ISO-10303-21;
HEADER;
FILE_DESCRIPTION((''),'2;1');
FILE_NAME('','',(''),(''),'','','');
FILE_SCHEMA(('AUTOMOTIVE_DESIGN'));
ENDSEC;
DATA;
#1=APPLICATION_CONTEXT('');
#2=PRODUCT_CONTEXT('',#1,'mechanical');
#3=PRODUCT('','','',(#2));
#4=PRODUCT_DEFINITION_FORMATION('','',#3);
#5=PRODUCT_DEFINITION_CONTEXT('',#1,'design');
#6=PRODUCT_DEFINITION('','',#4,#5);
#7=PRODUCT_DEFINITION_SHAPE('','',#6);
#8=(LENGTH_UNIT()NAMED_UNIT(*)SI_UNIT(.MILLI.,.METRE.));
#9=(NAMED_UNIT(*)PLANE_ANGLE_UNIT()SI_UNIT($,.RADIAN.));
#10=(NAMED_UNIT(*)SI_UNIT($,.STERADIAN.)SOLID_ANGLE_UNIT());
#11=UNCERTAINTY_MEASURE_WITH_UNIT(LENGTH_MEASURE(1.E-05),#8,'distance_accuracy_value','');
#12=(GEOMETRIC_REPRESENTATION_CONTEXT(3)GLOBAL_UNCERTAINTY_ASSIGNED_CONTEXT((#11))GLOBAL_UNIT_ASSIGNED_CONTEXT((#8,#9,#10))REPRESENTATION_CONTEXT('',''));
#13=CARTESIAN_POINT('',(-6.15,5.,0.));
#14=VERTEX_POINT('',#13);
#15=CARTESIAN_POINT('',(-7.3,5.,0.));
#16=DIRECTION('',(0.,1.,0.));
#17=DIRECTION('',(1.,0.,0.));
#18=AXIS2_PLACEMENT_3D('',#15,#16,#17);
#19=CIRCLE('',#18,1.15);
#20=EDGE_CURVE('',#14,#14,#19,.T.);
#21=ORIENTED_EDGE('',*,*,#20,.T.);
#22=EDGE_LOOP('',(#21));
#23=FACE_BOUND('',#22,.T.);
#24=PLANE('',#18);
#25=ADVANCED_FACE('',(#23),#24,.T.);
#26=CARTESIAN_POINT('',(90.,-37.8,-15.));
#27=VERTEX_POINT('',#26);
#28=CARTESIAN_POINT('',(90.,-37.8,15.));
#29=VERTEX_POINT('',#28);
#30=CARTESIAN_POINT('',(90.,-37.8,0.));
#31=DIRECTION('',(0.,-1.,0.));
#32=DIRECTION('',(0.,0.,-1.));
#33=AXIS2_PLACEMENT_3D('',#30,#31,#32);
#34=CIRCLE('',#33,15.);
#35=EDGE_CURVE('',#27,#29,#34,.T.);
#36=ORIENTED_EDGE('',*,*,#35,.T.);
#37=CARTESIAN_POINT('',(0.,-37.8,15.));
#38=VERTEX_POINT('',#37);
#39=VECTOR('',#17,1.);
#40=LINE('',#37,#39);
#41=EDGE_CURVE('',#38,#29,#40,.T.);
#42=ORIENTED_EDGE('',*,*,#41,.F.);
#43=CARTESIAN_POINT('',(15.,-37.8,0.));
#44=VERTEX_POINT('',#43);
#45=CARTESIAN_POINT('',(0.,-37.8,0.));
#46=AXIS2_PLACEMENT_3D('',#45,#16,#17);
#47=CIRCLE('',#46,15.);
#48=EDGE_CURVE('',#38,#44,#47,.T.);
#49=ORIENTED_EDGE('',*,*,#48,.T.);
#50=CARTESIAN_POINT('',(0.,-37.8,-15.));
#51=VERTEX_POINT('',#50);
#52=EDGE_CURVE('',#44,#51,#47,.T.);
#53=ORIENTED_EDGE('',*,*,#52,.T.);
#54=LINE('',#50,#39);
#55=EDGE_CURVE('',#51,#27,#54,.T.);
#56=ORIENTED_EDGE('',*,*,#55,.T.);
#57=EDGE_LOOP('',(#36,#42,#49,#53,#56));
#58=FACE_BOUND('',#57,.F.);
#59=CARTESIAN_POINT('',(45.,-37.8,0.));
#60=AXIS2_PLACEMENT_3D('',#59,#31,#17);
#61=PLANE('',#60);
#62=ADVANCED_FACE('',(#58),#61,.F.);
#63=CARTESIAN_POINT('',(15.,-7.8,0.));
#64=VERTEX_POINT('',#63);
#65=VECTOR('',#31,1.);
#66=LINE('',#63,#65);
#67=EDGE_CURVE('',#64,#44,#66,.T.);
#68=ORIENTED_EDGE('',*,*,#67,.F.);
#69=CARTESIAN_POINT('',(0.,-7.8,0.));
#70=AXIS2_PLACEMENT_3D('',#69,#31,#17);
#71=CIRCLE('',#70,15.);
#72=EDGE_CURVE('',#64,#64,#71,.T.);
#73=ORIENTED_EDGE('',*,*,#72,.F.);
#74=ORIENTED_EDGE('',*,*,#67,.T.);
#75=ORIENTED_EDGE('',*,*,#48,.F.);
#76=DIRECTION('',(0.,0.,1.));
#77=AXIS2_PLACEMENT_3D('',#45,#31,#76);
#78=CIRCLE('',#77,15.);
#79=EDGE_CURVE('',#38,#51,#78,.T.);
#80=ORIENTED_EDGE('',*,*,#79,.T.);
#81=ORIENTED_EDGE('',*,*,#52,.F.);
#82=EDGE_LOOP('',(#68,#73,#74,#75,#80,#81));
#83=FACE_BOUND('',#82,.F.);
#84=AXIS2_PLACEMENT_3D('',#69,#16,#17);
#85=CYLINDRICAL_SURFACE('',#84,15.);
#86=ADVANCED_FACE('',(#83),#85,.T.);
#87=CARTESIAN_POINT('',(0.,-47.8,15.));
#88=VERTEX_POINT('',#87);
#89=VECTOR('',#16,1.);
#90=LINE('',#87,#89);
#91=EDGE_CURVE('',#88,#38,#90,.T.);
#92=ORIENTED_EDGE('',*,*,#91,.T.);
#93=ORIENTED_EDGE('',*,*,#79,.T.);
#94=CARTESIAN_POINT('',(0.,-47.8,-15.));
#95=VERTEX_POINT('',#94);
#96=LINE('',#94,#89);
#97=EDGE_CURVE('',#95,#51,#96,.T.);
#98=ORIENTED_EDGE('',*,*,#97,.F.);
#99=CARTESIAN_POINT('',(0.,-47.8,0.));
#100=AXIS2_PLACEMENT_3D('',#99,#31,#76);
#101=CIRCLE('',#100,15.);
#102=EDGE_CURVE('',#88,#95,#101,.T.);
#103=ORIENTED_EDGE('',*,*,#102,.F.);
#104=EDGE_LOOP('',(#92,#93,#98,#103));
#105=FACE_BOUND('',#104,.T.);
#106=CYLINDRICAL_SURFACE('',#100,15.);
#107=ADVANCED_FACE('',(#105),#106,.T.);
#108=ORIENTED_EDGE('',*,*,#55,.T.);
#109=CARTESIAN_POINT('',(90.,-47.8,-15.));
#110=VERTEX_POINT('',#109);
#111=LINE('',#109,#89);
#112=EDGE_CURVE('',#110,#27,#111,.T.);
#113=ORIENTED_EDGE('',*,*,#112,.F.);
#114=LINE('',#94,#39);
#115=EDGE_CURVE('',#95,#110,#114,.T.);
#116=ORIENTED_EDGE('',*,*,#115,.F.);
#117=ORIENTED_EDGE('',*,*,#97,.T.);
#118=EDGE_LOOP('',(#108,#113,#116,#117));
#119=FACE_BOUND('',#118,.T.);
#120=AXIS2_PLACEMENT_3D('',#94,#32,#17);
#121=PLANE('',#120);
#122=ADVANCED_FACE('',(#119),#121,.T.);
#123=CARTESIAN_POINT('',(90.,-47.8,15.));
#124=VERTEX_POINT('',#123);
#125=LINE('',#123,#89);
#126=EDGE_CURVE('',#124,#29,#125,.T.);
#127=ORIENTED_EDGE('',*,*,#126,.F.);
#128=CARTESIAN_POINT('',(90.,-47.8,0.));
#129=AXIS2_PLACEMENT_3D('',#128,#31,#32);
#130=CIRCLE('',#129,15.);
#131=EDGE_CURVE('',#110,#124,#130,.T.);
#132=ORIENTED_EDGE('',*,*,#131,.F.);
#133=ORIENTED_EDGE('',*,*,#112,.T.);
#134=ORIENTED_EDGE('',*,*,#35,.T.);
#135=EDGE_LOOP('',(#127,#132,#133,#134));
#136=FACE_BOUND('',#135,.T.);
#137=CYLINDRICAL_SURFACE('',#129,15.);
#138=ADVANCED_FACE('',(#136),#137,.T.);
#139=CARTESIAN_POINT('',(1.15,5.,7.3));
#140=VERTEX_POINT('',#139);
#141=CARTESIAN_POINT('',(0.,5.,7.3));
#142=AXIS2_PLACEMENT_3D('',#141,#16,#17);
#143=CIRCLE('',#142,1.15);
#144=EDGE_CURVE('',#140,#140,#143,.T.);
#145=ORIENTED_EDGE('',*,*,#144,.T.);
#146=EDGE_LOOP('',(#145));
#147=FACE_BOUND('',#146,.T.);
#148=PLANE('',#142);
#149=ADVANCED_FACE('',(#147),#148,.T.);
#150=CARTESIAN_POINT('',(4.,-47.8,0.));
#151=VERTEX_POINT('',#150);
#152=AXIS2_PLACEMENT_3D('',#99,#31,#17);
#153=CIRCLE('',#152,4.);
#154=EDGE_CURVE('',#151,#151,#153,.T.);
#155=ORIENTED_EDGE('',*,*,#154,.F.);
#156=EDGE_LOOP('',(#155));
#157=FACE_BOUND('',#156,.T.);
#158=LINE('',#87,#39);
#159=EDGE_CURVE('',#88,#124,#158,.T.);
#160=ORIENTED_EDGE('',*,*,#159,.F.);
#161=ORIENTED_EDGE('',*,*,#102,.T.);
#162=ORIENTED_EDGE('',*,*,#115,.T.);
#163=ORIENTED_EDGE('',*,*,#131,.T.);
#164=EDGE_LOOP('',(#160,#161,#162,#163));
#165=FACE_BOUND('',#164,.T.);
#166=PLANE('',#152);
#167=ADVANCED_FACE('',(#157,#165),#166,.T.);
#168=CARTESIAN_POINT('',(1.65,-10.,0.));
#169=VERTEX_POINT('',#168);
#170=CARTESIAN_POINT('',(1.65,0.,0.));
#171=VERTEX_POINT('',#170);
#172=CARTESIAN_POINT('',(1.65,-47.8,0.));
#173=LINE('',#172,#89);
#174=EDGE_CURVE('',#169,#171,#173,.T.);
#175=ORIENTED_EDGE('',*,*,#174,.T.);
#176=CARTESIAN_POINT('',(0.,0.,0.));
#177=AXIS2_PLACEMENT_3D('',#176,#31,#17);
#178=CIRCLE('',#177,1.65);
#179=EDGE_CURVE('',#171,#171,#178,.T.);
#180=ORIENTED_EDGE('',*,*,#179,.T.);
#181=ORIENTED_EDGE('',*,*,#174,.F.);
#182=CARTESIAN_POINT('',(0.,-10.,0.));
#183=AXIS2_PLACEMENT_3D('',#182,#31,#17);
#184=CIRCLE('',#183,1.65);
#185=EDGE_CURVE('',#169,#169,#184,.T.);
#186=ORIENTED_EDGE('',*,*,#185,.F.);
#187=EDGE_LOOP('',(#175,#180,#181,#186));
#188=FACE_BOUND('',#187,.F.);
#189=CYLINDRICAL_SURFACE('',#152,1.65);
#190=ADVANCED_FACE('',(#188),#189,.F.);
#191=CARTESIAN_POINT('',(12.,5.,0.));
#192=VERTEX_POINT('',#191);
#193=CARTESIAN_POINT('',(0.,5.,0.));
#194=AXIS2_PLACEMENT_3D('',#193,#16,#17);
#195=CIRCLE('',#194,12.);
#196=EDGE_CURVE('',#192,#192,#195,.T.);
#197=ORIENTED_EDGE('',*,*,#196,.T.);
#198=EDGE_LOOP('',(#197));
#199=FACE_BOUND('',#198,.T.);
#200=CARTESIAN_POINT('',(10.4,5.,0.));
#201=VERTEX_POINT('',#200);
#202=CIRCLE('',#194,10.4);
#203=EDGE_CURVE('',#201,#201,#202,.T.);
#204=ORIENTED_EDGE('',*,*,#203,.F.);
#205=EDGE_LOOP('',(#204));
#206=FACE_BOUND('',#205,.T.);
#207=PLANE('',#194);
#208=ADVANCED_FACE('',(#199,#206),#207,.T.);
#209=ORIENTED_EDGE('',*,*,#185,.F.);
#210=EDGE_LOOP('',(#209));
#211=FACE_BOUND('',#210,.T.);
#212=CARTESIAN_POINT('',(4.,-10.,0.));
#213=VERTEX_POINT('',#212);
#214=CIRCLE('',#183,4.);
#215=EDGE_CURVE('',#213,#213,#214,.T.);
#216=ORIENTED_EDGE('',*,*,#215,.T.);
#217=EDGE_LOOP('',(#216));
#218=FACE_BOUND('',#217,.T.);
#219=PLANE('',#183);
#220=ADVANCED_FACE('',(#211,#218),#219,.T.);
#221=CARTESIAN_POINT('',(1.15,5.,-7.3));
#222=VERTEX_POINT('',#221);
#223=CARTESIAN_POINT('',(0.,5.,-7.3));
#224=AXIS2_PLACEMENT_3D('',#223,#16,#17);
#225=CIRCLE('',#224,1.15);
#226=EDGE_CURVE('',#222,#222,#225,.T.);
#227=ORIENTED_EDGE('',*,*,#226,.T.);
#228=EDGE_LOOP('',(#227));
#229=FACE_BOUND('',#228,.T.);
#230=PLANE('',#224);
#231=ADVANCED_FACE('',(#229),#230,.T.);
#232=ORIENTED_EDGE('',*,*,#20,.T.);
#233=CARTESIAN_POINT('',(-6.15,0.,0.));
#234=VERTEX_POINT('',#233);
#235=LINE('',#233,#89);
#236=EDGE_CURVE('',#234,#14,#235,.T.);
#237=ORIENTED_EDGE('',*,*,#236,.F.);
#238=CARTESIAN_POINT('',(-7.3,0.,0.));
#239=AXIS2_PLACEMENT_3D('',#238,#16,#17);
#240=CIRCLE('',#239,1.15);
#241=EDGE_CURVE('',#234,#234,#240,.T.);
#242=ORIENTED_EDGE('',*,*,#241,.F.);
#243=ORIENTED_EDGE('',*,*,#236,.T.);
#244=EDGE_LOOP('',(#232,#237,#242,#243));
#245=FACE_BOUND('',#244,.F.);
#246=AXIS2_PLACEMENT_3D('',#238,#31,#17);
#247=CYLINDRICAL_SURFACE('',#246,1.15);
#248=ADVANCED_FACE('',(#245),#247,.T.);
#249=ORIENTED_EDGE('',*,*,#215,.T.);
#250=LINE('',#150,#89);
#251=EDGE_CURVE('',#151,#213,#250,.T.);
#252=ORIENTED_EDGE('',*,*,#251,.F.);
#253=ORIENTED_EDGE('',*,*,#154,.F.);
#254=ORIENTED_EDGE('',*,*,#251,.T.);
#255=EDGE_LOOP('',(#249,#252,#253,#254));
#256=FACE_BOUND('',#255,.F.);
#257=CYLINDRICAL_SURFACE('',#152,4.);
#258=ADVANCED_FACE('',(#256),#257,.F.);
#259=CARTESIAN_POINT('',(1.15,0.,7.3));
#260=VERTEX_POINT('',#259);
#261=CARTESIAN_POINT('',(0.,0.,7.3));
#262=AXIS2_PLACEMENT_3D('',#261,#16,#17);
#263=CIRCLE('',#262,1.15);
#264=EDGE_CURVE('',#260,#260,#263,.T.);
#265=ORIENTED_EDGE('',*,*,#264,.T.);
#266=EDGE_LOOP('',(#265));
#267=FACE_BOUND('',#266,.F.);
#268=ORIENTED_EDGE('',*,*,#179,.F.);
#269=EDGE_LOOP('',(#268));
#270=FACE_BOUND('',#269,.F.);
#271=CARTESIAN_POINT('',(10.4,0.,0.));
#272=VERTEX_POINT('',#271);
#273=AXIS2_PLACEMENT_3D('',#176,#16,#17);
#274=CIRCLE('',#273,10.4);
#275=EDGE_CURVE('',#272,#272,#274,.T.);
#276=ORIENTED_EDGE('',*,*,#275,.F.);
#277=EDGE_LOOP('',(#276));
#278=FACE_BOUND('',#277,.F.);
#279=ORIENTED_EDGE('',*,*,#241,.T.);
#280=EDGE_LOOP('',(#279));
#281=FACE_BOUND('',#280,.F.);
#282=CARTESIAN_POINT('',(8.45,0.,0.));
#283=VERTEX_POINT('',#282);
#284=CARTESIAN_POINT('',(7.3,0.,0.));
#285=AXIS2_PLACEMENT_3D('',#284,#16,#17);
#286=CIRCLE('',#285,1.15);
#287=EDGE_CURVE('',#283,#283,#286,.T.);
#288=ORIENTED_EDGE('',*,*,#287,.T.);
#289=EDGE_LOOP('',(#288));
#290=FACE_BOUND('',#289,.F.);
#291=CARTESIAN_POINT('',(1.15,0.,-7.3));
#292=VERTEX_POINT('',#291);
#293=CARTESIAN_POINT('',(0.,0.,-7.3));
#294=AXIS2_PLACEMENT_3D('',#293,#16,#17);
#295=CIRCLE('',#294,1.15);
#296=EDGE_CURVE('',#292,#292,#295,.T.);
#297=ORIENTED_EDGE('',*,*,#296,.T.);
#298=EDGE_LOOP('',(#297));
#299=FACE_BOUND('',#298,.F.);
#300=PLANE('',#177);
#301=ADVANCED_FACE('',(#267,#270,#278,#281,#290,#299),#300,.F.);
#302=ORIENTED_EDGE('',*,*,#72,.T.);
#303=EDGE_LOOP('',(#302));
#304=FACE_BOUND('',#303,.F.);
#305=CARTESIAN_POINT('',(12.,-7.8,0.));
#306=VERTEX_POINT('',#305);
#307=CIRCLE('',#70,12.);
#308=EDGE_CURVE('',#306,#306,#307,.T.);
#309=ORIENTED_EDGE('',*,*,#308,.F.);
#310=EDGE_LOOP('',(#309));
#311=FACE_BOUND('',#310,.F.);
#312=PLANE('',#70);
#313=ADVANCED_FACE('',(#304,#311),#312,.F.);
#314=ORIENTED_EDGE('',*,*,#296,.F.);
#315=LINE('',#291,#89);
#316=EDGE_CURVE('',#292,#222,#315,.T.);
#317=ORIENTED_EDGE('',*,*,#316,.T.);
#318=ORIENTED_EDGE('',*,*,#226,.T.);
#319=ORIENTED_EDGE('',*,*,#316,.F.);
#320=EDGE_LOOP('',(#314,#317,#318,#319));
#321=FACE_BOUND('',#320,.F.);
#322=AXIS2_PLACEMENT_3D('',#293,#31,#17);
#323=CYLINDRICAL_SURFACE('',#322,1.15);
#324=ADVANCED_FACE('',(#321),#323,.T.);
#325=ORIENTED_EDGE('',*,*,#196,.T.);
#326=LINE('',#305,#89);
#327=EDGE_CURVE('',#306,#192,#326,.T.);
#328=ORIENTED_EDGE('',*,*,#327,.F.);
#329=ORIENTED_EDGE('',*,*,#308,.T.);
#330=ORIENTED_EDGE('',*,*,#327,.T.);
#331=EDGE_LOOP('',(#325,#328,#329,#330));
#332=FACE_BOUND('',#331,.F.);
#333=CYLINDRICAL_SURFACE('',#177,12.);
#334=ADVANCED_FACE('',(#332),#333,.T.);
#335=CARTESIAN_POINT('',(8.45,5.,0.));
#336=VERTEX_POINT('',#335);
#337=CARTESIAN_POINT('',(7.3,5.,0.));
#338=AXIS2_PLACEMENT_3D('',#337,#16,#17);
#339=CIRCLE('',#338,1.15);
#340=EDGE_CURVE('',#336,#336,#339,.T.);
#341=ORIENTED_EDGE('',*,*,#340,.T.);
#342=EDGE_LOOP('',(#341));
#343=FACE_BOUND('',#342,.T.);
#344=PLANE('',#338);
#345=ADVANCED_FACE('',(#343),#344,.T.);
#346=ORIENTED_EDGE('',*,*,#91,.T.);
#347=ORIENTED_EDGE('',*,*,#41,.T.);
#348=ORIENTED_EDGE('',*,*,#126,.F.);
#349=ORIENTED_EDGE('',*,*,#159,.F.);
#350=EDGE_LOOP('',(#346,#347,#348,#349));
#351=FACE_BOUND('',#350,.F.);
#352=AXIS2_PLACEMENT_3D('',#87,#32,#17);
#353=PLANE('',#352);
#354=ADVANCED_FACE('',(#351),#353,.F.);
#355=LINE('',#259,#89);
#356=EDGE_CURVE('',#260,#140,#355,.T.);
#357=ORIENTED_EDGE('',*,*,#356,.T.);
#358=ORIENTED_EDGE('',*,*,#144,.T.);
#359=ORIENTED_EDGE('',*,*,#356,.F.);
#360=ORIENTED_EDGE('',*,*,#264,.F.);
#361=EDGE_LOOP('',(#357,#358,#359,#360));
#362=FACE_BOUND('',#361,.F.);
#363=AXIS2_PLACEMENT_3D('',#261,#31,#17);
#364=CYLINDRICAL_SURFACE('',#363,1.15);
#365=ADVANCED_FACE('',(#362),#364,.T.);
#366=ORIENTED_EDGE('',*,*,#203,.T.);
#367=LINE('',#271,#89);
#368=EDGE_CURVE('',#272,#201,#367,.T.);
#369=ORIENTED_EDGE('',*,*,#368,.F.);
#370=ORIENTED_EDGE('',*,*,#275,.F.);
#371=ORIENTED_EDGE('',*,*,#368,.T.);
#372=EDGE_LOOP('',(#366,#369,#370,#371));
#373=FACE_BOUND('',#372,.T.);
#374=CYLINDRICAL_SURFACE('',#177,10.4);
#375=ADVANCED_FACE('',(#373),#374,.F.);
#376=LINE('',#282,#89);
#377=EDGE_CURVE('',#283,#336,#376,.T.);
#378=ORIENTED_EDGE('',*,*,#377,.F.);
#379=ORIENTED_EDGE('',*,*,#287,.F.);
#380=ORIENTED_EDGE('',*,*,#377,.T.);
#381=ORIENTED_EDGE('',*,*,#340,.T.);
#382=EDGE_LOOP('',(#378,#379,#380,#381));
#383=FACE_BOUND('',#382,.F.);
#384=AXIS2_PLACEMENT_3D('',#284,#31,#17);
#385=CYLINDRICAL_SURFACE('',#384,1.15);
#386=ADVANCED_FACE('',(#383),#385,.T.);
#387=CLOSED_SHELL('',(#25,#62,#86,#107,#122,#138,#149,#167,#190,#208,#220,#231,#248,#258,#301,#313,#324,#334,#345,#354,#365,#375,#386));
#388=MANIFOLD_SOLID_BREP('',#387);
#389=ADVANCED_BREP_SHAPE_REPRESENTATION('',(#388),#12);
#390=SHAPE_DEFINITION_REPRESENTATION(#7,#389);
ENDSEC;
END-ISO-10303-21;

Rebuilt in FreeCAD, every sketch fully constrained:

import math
import FreeCAD as App
import Part
import Sketcher
from FreeCAD import Vector
Q = App.Units.Quantity

doc = App.newDocument("Part")
params = doc.addObject("Spreadsheet::Sheet", "Params")
for row, (alias, value) in enumerate([
    ("sketch1_diameter", "24 mm"),
    ("pad1_length", "7.8 mm"),
    ("sketch2_diameter", "24 mm"),
    ("sketch2_diameter2", "20.8 mm"),
    ("sketch2_diameter3", "2.3 mm"),
    ("pad2_length", "5 mm"),
    ("sketch3_diameter", "30 mm"),
    ("pad3_length", "40 mm"),
    ("sketch4_radius", "15 mm"),
    ("sketch4_width", "90 mm"),
    ("pad4_length", "10 mm"),
    ("sketch5_diameter", "3.3 mm"),
    ("sketch6_diameter", "8 mm"),
    ("pocket2_length", "37.8 mm"),
], start=1):
    params.set(f"A{row}", alias)
    params.set(f"B{row}", "=" + value)
    params.setAlias(f"B{row}", alias)

body = doc.addObject("PartDesign::Body", "Body")

sketch1 = doc.addObject("Sketcher::SketchObject", "Sketch")
body.addObject(sketch1)
sketch1.AttachmentSupport = (doc.XZ_Plane, [""])
sketch1.MapMode = "FlatFace"
sketch1.addGeometry(Part.Circle(Vector(0, 0, 0), Vector(0, 0, 1), 12), False)
sketch1.addConstraint([
    Sketcher.Constraint("Coincident", 0, 3, -1, 1),
    Sketcher.Constraint("Diameter", 0, Q("24 mm")),
])
sketch1.setExpression("Constraints[1]", "Params.sketch1_diameter")
pad1 = doc.addObject("PartDesign::Pad", "Pad")
body.addObject(pad1)
pad1.Profile = sketch1
pad1.setExpression("Length", "Params.pad1_length")

sketch2 = doc.addObject("Sketcher::SketchObject", "Sketch001")
body.addObject(sketch2)
sketch2.AttachmentSupport = (doc.XZ_Plane, [""])
sketch2.MapMode = "FlatFace"
sketch2.addGeometry([
    Part.Circle(Vector(0, 0, 0), Vector(0, 0, 1), 12),
    Part.Circle(Vector(0, 0, 0), Vector(0, 0, 1), 10.4),
    Part.Circle(Vector(0, -7.3, 0), Vector(0, 0, 1), 1.1),
    Part.Circle(Vector(7.3, 0, 0), Vector(0, 0, 1), 1.1),
    Part.Circle(Vector(0, 7.3, 0), Vector(0, 0, 1), 1.1),
    Part.Circle(Vector(-7.3, 0, 0), Vector(0, 0, 1), 1.1),
], False)
sketch2.addConstraint([
    Sketcher.Constraint("Coincident", 0, 3, -1, 1),
    Sketcher.Constraint("Coincident", 1, 3, -1, 1),
    Sketcher.Constraint("Equal", 2, 3),
    Sketcher.Constraint("Equal", 3, 4),
    Sketcher.Constraint("Equal", 4, 5),
    Sketcher.Constraint("Symmetric", 2, 3, 4, 3, -1, 1),
    Sketcher.Constraint("Symmetric", 3, 3, 5, 3, -1, 1),
    Sketcher.Constraint("PointOnObject", 2, 3, -2),
    Sketcher.Constraint("PointOnObject", 3, 3, -1),
    Sketcher.Constraint("Diameter", 0, Q("24 mm")),
    Sketcher.Constraint("Diameter", 1, Q("20.8 mm")),
    Sketcher.Constraint("Diameter", 2, Q("2.3 mm")),
    Sketcher.Constraint("DistanceY", 2, 3, -1, 1, Q("7.3 mm")),
    Sketcher.Constraint("DistanceX", -1, 1, 3, 3, Q("7.3 mm")),
])
sketch2.setExpression("Constraints[9]", "Params.sketch2_diameter")
sketch2.setExpression("Constraints[10]", "Params.sketch2_diameter2")
sketch2.setExpression("Constraints[11]", "Params.sketch2_diameter3")
pad2 = doc.addObject("PartDesign::Pad", "Pad001")
body.addObject(pad2)
pad2.Profile = sketch2
pad2.setExpression("Length", "Params.pad2_length")
pad2.Reversed = True

sketch3 = doc.addObject("Sketcher::SketchObject", "Sketch002")
body.addObject(sketch3)
sketch3.AttachmentSupport = (doc.XZ_Plane, [""])
sketch3.MapMode = "FlatFace"
sketch3.AttachmentOffset = App.Placement(Vector(0, 0, 7.8), App.Rotation())
sketch3.addGeometry(Part.Circle(Vector(0, 0, 0), Vector(0, 0, 1), 15), False)
sketch3.addConstraint([
    Sketcher.Constraint("Coincident", 0, 3, -1, 1),
    Sketcher.Constraint("Diameter", 0, Q("30 mm")),
])
sketch3.setExpression("Constraints[1]", "Params.sketch3_diameter")
pad3 = doc.addObject("PartDesign::Pad", "Pad002")
body.addObject(pad3)
pad3.Profile = sketch3
pad3.setExpression("Length", "Params.pad3_length")

sketch4 = doc.addObject("Sketcher::SketchObject", "Sketch003")
body.addObject(sketch4)
sketch4.AttachmentSupport = (doc.XZ_Plane, [""])
sketch4.MapMode = "FlatFace"
sketch4.AttachmentOffset = App.Placement(Vector(0, 0, 47.8), App.Rotation())
sketch4.addGeometry([
    Part.ArcOfCircle(Part.Circle(Vector(0, 0, 0), Vector(0, 0, 1), 15), math.radians(90), math.radians(270)),
    Part.LineSegment(Vector(0, -15, 0), Vector(90, -15, 0)),
    Part.ArcOfCircle(Part.Circle(Vector(90, 0, 0), Vector(0, 0, 1), 15), math.radians(-90), math.radians(90)),
    Part.LineSegment(Vector(90, 15, 0), Vector(0, 15, 0)),
], False)
sketch4.addConstraint([
    Sketcher.Constraint("Tangent", 0, 2, 1, 1),
    Sketcher.Constraint("Tangent", 1, 2, 2, 1),
    Sketcher.Constraint("Tangent", 2, 2, 3, 1),
    Sketcher.Constraint("Tangent", 3, 2, 0, 1),
    Sketcher.Constraint("Horizontal", 1),
    Sketcher.Constraint("Horizontal", 3),
    Sketcher.Constraint("Coincident", 0, 3, -1, 1),
    Sketcher.Constraint("Radius", 0, Q("15 mm")),
    Sketcher.Constraint("DistanceX", 1, 1, 1, 2, Q("90 mm")),
])
sketch4.setExpression("Constraints[7]", "Params.sketch4_radius")
sketch4.setExpression("Constraints[8]", "Params.sketch4_width")
pad4 = doc.addObject("PartDesign::Pad", "Pad003")
body.addObject(pad4)
pad4.Profile = sketch4
pad4.setExpression("Length", "Params.pad4_length")
pad4.Reversed = True

sketch5 = doc.addObject("Sketcher::SketchObject", "Sketch004")
body.addObject(sketch5)
sketch5.AttachmentSupport = (doc.XZ_Plane, [""])
sketch5.MapMode = "FlatFace"
sketch5.AttachmentOffset = App.Placement(Vector(0, 0, 47.8), App.Rotation())
sketch5.addGeometry(Part.Circle(Vector(0, 0, 0), Vector(0, 0, 1), 1.6), False)
sketch5.addConstraint([
    Sketcher.Constraint("Coincident", 0, 3, -1, 1),
    Sketcher.Constraint("Diameter", 0, Q("3.3 mm")),
])
sketch5.setExpression("Constraints[1]", "Params.sketch5_diameter")
pocket1 = doc.addObject("PartDesign::Pocket", "Pocket")
body.addObject(pocket1)
pocket1.Profile = sketch5
pocket1.Type = "ThroughAll"

sketch6 = doc.addObject("Sketcher::SketchObject", "Sketch005")
body.addObject(sketch6)
sketch6.AttachmentSupport = (doc.XZ_Plane, [""])
sketch6.MapMode = "FlatFace"
sketch6.AttachmentOffset = App.Placement(Vector(0, 0, 47.8), App.Rotation())
sketch6.addGeometry(Part.Circle(Vector(0, 0, 0), Vector(0, 0, 1), 4), False)
sketch6.addConstraint([
    Sketcher.Constraint("Coincident", 0, 3, -1, 1),
    Sketcher.Constraint("Diameter", 0, Q("8 mm")),
])
sketch6.setExpression("Constraints[1]", "Params.sketch6_diameter")
pocket2 = doc.addObject("PartDesign::Pocket", "Pocket001")
body.addObject(pocket2)
pocket2.Profile = sketch6
pocket2.setExpression("Length", "Params.pocket2_length")

doc.recompute()
